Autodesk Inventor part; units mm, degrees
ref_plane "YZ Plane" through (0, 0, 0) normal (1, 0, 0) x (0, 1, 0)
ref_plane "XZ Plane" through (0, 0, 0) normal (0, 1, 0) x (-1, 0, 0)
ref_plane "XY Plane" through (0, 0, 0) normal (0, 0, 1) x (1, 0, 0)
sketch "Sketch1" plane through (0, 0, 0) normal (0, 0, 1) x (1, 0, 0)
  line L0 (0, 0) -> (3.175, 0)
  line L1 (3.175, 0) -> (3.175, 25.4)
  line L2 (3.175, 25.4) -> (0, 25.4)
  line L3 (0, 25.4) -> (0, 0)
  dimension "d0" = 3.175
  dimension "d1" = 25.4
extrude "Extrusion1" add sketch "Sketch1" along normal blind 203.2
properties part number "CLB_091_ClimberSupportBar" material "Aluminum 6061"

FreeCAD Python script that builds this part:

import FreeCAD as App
import Part
import Sketcher
from FreeCAD import Vector
Q = App.Units.Quantity

doc = App.newDocument("Part")
body = doc.addObject("PartDesign::Body", "Body")

sketch1 = doc.addObject("Sketcher::SketchObject", "Sketch")
body.addObject(sketch1)
sketch1.AttachmentSupport = (doc.XY_Plane, [""])
sketch1.MapMode = "FlatFace"
sketch1.addGeometry([
    Part.LineSegment(Vector(0, 25.4, 0), Vector(0, 0, 0)),
    Part.LineSegment(Vector(0, 0, 0), Vector(3.2, 0, 0)),
    Part.LineSegment(Vector(3.2, 0, 0), Vector(3.2, 25.4, 0)),
    Part.LineSegment(Vector(3.2, 25.4, 0), Vector(0, 25.4, 0)),
], False)
sketch1.addConstraint([
    Sketcher.Constraint("Coincident", 0, 2, 1, 1),
    Sketcher.Constraint("Coincident", 1, 2, 2, 1),
    Sketcher.Constraint("Coincident", 2, 2, 3, 1),
    Sketcher.Constraint("Coincident", 3, 2, 0, 1),
    Sketcher.Constraint("Vertical", 0),
    Sketcher.Constraint("Horizontal", 1),
    Sketcher.Constraint("Vertical", 2),
    Sketcher.Constraint("Horizontal", 3),
    Sketcher.Constraint("Coincident", 0, 2, -1, 1),
    Sketcher.Constraint("DistanceY", 0, 2, 0, 1, Q("1 in")),
    Sketcher.Constraint("DistanceX", 1, 1, 1, 2, Q("0.125 in")),
])
pad1 = doc.addObject("PartDesign::Pad", "Pad")
body.addObject(pad1)
pad1.Profile = sketch1
pad1.Length = Q("8 in")

doc.recompute()
